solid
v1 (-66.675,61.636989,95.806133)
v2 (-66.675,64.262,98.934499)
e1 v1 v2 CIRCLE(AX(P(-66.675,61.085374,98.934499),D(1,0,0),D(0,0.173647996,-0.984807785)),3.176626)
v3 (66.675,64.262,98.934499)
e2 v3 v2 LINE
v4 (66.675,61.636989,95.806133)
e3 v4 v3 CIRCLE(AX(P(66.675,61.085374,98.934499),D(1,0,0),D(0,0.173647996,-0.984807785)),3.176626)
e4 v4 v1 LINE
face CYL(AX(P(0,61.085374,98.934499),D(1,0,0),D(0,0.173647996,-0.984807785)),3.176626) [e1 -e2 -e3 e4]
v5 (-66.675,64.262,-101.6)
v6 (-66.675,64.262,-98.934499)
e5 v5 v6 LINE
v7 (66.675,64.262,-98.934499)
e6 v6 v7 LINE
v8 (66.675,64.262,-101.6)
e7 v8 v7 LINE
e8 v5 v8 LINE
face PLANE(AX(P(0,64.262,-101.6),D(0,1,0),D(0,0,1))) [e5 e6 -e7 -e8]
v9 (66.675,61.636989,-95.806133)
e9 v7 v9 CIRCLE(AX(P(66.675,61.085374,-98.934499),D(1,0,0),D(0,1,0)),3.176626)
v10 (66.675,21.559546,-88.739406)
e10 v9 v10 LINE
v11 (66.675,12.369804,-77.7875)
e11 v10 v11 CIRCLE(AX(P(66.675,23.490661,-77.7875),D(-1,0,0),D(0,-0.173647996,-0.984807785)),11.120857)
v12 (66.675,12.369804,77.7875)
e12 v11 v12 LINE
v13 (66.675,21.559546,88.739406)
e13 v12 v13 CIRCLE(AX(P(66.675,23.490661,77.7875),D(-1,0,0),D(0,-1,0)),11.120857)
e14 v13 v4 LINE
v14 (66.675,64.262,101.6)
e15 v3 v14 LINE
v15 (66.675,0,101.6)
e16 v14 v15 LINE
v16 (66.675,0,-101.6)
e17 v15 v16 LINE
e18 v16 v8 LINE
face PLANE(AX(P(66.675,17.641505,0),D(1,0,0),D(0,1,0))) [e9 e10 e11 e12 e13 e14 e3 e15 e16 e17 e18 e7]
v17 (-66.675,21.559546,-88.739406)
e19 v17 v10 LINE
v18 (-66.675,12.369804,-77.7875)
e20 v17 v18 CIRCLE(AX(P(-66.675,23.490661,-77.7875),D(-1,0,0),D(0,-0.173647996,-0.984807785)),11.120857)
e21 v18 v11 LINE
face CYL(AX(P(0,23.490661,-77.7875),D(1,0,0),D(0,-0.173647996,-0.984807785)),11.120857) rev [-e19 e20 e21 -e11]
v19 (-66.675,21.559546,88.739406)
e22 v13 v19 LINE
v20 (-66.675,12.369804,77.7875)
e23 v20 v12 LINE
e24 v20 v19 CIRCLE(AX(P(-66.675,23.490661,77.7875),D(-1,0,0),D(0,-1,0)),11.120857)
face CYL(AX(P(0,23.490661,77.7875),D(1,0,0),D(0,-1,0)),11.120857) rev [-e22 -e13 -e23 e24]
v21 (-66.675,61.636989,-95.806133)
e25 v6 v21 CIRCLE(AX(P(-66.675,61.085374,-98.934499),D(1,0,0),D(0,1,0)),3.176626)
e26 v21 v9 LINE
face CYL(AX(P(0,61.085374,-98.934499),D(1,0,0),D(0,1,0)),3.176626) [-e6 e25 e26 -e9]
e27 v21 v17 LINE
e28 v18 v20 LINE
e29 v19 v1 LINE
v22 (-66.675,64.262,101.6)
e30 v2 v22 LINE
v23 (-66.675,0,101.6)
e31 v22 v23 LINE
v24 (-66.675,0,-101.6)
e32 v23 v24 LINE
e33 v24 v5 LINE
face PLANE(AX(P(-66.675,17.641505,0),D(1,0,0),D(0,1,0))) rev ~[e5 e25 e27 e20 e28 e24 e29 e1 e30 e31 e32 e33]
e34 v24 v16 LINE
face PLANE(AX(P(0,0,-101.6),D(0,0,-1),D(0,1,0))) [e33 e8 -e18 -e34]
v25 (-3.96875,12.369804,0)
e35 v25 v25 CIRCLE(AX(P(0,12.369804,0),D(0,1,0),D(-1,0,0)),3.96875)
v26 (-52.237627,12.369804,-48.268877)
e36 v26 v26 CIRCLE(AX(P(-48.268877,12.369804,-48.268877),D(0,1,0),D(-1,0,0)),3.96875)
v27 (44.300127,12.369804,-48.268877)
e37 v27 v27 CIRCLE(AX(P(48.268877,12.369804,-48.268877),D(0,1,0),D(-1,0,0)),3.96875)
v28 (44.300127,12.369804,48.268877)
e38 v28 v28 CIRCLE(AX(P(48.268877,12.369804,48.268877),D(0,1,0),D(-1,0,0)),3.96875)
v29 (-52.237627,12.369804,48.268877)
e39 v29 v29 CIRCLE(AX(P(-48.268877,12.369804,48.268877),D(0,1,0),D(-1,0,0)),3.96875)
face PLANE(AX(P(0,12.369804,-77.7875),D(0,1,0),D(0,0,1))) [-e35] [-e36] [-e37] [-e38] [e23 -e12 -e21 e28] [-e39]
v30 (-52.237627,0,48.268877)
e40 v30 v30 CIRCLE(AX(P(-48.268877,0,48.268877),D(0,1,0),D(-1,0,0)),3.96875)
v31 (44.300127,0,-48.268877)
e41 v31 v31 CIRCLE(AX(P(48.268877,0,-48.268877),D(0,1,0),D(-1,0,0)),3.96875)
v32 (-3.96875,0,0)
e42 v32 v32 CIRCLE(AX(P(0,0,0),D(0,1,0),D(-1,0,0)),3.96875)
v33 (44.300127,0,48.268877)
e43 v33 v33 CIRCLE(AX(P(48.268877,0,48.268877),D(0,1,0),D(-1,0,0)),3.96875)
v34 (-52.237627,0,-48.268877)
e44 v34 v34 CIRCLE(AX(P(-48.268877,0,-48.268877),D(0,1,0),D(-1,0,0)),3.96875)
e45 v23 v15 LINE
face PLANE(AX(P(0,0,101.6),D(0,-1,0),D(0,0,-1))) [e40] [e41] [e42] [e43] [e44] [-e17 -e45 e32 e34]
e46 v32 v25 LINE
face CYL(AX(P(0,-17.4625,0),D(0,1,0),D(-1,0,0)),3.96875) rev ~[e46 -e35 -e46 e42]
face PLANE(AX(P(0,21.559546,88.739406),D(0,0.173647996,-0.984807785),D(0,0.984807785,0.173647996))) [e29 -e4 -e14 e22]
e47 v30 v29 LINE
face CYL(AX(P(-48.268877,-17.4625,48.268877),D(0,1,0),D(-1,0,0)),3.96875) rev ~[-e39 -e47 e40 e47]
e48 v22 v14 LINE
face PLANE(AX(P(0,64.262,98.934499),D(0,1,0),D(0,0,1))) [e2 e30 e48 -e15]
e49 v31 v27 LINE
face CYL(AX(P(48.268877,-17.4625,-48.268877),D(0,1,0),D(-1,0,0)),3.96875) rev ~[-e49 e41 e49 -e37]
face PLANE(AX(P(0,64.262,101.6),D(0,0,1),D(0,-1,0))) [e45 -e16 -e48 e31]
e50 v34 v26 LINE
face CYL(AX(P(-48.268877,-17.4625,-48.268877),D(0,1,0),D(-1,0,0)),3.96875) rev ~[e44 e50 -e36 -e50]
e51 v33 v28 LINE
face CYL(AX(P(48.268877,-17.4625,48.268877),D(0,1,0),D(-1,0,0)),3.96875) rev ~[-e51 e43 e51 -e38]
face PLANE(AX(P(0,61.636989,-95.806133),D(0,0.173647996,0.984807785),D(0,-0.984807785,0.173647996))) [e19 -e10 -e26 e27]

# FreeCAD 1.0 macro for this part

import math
import FreeCAD as App
import Part
import Sketcher
Q = App.Units.Quantity

doc = App.newDocument("Part")
body = doc.addObject("PartDesign::Body", "Body")

# Sketch on YZ plane
sketch1 = doc.addObject("Sketcher::SketchObject", "Sketch")
body.addObject(sketch1)
sketch1.AttachmentSupport = (doc.YZ_Plane, [""])
sketch1.MapMode = "FlatFace"
sketch1.addGeometry([
    Part.LineSegment(App.Vector(64.262, 98.934499, 0), App.Vector(64.262, 101.6, 0)),  # 0
    Part.LineSegment(App.Vector(64.262, 101.6, 0), App.Vector(0, 101.6, 0)),  # 1
    Part.LineSegment(App.Vector(0, 101.6, 0), App.Vector(0, -101.6, 0)),  # 2
    Part.LineSegment(App.Vector(0, -101.6, 0), App.Vector(64.262, -101.6, 0)),  # 3
    Part.LineSegment(App.Vector(64.262, -101.6, 0), App.Vector(64.262, -98.934499, 0)),  # 4
    Part.ArcOfCircle(Part.Circle(App.Vector(61.085374, -98.934499, 0), App.Vector(0, 0, 1), 3.176626), math.radians(0), math.radians(80.000011)),  # 5
    Part.LineSegment(App.Vector(61.636989, -95.806133, 0), App.Vector(21.559546, -88.739406, 0)),  # 6
    Part.ArcOfCircle(Part.Circle(App.Vector(23.490661, -77.7875, 0), App.Vector(0, 0, 1), 11.120857), math.radians(180), math.radians(260.000011)),  # 7
    Part.LineSegment(App.Vector(12.369804, -77.7875, 0), App.Vector(12.369804, 77.7875, 0)),  # 8
    Part.ArcOfCircle(Part.Circle(App.Vector(23.490661, 77.7875, 0), App.Vector(0, 0, 1), 11.120857), math.radians(99.999989), math.radians(180)),  # 9
    Part.LineSegment(App.Vector(21.559546, 88.739406, 0), App.Vector(61.636989, 95.806133, 0)),  # 10
    Part.ArcOfCircle(Part.Circle(App.Vector(61.085374, 98.934499, 0), App.Vector(0, 0, 1), 3.176626), math.radians(-80.000011), math.radians(0)),  # 11
], False)
sketch1.addConstraint([
    Sketcher.Constraint("Coincident", 0, 2, 1, 1),
    Sketcher.Constraint("Coincident", 1, 2, 2, 1),
    Sketcher.Constraint("Coincident", 2, 2, 3, 1),
    Sketcher.Constraint("Coincident", 3, 2, 4, 1),
    Sketcher.Constraint("Tangent", 4, 2, 5, 1),
    Sketcher.Constraint("Tangent", 5, 2, 6, 1),
    Sketcher.Constraint("Tangent", 6, 2, 7, 2),
    Sketcher.Constraint("Tangent", 7, 1, 8, 1),
    Sketcher.Constraint("Tangent", 8, 2, 9, 2),
    Sketcher.Constraint("Tangent", 9, 1, 10, 1),
    Sketcher.Constraint("Tangent", 10, 2, 11, 1),
    Sketcher.Constraint("Tangent", 11, 2, 0, 1),
    Sketcher.Constraint("Vertical", 0),
    Sketcher.Constraint("Horizontal", 1),
    Sketcher.Constraint("Vertical", 2),
    Sketcher.Constraint("Horizontal", 3),
    Sketcher.Constraint("Vertical", 4),
    Sketcher.Constraint("Vertical", 8),
    Sketcher.Constraint("Equal", 7, 9),
    Sketcher.Constraint("Equal", 5, 11),
    Sketcher.Constraint("Symmetric", 1, 2, 2, 2, -1, 1),
    Sketcher.Constraint("Symmetric", 5, 3, 11, 3, -1),
    Sketcher.Constraint("Vertical", 6, 2, 9, 1),
    Sketcher.Constraint("DistanceY", 2, 2, 2, 1, Q("8 in")),
    Sketcher.Constraint("Angle", 6, Q("170.000011 deg")),
    Sketcher.Constraint("DistanceX", 1, 2, 1, 1, Q("2.53 in")),
    Sketcher.Constraint("DistanceY", 8, 1, 8, 2, Q("6.125 in")),
    Sketcher.Constraint("DistanceX", -1, 1, 7, 1, Q("0.4870002 in")),
    Sketcher.Constraint("DistanceY", 0, 1, 0, 2, 2.665501),
    Sketcher.Constraint("Radius", 5, 3.176626),
])
pad1 = doc.addObject("PartDesign::Pad", "Pad")
body.addObject(pad1)
pad1.Profile = sketch1
pad1.Length = Q("5.25 in")
pad1.Midplane = True

# Sketch on XZ plane
sketch2 = doc.addObject("Sketcher::SketchObject", "Sketch001")
body.addObject(sketch2)
sketch2.AttachmentSupport = (doc.XZ_Plane, [""])
sketch2.MapMode = "FlatFace"
sketch2.addGeometry([
    Part.Circle(App.Vector(-48.268877, 48.268877, 0), App.Vector(0, 0, 1), 3.96875),  # 0
    Part.Circle(App.Vector(48.268877, 48.268877, 0), App.Vector(0, 0, 1), 3.96875),  # 1
    Part.Circle(App.Vector(48.268877, -48.268877, 0), App.Vector(0, 0, 1), 3.96875),  # 2
    Part.Circle(App.Vector(-48.268877, -48.268877, 0), App.Vector(0, 0, 1), 3.96875),  # 3
    Part.Circle(App.Vector(0, 0, 0), App.Vector(0, 0, 1), 3.96875),  # 4
], False)
sketch2.addConstraint([
    Sketcher.Constraint("Coincident", 4, 3, -1, 1),
    Sketcher.Constraint("Equal", 0, 1),
    Sketcher.Constraint("Equal", 1, 2),
    Sketcher.Constraint("Equal", 2, 3),
    Sketcher.Constraint("Equal", 3, 4),
    Sketcher.Constraint("Symmetric", 0, 3, 2, 3, -1, 1),
    Sketcher.Constraint("Symmetric", 1, 3, 3, 3, -1, 1),
    Sketcher.Constraint("Symmetric", 0, 3, 1, 3, -2),
    Sketcher.Constraint("Diameter", 0, Q("0.3125 in")),
    Sketcher.Constraint("DistanceX", 0, 3, -1, 1, 48.268877),
    Sketcher.Constraint("DistanceY", -1, 1, 0, 3, 48.268877),
])
doc.recompute()
hole = doc.addObject("PartDesign::Hole", "Hole")
body.addObject(hole)
hole.Profile = sketch2
hole.ThreadType = "None"
hole.Diameter = Q("0.3125 in")
hole.DepthType = "Dimension"
hole.Depth = Q("0.6875 in")
hole.DrillPoint = "Angled"
hole.DrillPointAngle = 118

doc.recompute()
